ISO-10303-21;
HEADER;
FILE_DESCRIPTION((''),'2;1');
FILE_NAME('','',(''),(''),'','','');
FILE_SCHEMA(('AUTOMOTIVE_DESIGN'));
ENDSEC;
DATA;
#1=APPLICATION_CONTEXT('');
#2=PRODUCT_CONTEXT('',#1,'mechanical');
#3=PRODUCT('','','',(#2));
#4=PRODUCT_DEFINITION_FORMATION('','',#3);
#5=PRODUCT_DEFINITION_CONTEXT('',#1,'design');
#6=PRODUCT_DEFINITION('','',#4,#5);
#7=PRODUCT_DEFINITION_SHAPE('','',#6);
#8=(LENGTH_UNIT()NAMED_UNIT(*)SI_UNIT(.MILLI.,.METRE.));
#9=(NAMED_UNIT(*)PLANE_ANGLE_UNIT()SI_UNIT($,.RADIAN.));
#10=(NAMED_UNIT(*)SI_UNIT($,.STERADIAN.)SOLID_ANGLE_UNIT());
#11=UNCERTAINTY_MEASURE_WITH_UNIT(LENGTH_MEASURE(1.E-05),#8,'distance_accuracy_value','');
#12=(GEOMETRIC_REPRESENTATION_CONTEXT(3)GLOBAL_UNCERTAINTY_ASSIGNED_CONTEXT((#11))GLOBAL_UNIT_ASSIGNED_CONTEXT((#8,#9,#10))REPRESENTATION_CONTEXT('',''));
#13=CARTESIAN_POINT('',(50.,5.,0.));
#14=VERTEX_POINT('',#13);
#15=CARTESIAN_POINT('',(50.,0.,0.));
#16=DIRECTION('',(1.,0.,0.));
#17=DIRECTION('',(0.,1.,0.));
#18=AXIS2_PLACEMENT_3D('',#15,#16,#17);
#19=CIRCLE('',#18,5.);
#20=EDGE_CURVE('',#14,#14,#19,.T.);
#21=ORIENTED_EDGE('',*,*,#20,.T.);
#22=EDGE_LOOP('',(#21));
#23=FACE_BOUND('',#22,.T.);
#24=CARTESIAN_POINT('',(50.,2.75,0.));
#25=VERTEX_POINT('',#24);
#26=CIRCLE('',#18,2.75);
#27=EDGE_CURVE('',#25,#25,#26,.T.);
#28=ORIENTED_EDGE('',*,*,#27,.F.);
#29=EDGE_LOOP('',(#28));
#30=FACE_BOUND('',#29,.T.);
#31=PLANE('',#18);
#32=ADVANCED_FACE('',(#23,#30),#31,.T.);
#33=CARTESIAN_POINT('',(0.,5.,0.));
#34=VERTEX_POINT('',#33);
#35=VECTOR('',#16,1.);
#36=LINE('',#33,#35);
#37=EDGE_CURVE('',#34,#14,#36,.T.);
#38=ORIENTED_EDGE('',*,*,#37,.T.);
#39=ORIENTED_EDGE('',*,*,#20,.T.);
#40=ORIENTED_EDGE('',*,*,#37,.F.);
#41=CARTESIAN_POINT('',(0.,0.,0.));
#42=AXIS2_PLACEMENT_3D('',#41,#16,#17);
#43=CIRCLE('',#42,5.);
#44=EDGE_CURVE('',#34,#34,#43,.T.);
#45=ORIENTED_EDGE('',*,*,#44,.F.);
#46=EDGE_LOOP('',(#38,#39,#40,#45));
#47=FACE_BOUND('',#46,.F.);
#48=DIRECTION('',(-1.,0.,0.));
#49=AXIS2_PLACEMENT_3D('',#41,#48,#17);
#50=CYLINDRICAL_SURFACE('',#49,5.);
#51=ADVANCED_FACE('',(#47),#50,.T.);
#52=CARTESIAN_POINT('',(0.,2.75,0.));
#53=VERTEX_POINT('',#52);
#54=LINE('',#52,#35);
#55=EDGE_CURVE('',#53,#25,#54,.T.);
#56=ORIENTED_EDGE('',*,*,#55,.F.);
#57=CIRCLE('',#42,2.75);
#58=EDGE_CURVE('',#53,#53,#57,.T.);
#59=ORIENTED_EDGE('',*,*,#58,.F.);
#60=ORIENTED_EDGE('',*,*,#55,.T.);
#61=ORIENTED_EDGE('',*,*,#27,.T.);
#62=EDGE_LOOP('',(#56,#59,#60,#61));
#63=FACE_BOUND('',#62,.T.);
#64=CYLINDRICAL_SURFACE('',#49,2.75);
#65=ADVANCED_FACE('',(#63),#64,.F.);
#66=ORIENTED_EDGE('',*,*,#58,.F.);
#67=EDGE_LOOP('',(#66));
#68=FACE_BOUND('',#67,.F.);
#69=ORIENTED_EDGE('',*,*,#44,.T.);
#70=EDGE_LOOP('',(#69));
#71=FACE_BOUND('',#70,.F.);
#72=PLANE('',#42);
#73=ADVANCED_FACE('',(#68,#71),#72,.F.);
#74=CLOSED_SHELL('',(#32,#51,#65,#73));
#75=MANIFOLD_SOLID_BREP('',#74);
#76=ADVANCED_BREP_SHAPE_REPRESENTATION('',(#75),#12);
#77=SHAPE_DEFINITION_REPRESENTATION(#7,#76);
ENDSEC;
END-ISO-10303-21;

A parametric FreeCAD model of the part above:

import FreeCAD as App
import Part
import Sketcher

V = App.Vector
Q = App.Units.Quantity

doc = App.newDocument("Part")
body = doc.addObject("PartDesign::Body", "Body")

sketch1 = body.newObject("Sketcher::SketchObject", "Sketch")
sketch1.AttachmentSupport = (doc.getObject("YZ_Plane"), [""])
sketch1.MapMode = "FlatFace"
sketch1.addGeometry([
    Part.Circle(V(0, 0, 0), V(0, 0, 1), 5),
    Part.Circle(V(0, 0, 0), V(0, 0, 1), 2.8),
], False)
sketch1.addConstraint([
    Sketcher.Constraint("Coincident", 0, 3, -1, 1),
    Sketcher.Constraint("Coincident", 1, 3, -1, 1),
    Sketcher.Constraint("Diameter", 0, Q("10 mm")),
    Sketcher.Constraint("Diameter", 1, Q("5.5 mm")),
])
pad1 = body.newObject("PartDesign::Pad", "Pad")
pad1.Profile = sketch1
pad1.Length = 50

doc.recompute()
